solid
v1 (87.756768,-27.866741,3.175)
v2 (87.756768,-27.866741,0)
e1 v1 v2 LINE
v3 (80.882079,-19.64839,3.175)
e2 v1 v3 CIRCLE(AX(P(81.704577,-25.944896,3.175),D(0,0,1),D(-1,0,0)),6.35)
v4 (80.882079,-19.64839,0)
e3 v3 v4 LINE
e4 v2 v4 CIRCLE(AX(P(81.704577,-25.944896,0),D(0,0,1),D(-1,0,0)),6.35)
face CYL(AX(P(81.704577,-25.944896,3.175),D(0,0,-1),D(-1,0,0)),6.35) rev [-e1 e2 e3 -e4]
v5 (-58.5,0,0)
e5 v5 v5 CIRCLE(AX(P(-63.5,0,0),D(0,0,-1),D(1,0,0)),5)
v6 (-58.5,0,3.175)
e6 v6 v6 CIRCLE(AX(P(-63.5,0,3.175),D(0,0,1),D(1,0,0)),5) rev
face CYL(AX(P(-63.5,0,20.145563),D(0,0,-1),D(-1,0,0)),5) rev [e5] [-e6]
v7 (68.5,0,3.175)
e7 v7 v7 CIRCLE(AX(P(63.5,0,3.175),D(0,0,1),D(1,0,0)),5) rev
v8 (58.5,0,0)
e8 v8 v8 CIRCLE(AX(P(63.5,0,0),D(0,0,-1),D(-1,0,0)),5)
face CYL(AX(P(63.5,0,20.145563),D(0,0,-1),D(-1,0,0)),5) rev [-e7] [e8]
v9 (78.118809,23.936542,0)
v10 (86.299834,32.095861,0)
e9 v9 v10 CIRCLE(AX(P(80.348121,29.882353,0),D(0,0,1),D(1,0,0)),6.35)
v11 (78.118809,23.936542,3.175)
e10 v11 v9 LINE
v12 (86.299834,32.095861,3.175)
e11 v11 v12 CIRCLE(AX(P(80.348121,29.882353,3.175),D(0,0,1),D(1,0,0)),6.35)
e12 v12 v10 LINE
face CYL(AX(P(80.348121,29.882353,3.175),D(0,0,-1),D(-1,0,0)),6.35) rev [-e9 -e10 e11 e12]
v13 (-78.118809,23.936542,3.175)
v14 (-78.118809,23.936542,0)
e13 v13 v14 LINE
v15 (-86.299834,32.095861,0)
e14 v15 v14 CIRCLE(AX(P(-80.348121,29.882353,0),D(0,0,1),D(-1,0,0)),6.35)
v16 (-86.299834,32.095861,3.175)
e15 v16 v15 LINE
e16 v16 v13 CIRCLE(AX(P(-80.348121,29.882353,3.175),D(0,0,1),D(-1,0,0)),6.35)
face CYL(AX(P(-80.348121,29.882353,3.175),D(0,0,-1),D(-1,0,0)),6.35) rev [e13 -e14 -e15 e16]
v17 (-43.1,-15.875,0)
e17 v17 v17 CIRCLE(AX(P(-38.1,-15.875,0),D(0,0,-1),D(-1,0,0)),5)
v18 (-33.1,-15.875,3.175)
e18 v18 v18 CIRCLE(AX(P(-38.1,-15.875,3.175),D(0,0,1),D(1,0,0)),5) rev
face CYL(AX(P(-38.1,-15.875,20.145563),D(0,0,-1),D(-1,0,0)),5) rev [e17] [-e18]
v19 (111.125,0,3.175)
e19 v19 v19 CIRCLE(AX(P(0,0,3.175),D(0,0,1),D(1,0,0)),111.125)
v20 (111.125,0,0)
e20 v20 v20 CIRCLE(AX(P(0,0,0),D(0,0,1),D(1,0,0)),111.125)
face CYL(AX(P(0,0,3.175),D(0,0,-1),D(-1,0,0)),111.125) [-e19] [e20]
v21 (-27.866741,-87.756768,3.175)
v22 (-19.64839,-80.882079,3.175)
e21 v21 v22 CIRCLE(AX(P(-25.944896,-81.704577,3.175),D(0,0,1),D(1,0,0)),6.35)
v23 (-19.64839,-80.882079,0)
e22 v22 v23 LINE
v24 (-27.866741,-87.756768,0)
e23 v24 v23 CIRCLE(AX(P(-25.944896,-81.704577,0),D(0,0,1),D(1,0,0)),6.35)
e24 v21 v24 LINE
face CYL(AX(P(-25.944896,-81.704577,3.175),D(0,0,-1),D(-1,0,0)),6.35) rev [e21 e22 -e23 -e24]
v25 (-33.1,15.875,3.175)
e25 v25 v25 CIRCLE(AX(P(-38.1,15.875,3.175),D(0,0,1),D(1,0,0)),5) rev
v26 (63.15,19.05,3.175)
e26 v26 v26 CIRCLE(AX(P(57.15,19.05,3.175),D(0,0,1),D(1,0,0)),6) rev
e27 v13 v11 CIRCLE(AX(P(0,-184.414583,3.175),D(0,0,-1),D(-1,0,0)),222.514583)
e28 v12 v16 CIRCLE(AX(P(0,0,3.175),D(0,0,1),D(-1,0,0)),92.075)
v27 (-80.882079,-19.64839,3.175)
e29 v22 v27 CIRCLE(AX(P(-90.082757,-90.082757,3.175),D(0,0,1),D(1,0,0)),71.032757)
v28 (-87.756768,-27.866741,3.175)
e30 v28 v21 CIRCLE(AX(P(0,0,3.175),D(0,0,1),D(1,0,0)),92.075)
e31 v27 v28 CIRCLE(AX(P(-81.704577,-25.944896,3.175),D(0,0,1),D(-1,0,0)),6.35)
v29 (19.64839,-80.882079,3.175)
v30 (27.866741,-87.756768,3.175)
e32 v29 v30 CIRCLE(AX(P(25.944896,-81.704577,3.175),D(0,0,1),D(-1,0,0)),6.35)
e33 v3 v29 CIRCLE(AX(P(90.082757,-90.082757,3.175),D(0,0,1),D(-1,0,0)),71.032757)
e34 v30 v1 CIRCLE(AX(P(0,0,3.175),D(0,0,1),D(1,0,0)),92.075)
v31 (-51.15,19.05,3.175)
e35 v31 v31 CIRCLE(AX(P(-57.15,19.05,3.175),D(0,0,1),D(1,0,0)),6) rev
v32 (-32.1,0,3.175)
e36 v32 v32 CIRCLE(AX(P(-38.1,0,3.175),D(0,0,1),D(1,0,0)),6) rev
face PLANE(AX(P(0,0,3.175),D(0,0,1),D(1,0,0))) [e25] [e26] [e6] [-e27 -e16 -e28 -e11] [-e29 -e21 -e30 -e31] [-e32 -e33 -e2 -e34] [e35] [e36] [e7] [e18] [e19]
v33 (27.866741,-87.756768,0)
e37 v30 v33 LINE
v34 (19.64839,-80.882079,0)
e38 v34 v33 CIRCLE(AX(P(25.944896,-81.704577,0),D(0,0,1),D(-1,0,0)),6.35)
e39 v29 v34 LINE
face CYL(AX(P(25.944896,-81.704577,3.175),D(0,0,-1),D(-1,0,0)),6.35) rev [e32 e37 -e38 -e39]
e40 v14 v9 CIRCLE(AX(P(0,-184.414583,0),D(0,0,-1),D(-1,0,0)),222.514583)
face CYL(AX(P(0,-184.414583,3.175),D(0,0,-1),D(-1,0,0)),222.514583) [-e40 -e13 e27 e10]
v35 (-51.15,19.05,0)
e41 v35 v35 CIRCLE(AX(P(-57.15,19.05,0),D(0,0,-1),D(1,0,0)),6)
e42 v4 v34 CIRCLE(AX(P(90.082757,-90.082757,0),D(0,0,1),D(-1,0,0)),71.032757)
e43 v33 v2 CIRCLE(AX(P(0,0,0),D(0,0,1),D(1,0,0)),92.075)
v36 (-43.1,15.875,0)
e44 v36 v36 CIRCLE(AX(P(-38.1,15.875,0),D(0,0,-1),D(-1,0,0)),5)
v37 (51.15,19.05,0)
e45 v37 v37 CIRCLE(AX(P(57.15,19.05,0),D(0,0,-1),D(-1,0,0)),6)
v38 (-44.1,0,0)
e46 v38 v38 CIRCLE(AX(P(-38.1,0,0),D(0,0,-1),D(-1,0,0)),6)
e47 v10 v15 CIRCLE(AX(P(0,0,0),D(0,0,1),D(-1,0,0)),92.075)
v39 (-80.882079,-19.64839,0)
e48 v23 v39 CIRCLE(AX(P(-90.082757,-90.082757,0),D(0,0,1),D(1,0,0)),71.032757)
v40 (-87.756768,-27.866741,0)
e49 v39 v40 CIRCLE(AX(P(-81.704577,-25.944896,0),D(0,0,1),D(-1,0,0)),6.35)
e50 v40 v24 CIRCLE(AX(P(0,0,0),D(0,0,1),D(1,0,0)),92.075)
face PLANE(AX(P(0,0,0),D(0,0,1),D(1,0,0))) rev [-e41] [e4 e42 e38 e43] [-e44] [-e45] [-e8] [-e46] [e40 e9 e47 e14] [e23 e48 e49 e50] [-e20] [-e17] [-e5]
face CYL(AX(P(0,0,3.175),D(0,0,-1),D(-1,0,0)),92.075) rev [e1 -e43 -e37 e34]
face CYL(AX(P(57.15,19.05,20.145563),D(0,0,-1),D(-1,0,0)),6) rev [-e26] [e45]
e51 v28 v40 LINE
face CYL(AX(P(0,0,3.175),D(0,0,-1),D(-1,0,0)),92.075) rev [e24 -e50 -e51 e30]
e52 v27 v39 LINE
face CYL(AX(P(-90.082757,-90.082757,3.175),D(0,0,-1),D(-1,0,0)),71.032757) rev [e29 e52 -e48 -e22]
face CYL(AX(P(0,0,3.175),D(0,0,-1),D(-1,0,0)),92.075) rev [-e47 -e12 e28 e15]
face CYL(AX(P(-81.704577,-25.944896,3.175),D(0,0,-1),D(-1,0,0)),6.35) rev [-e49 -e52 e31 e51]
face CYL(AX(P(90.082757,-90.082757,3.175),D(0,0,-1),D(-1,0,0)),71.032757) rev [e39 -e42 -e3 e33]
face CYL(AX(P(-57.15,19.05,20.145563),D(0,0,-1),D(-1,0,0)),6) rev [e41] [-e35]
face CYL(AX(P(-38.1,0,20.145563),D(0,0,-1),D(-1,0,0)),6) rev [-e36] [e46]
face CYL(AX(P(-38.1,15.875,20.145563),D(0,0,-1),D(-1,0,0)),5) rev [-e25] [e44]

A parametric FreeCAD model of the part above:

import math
import FreeCAD as App
import Part
import Sketcher
Q = App.Units.Quantity

doc = App.newDocument("Part")
params = doc.addObject("Spreadsheet::Sheet", "Params")
for row, (alias, value) in enumerate([
    ("sketch1_diameter", "8.75 in"),
    ("sketch1_radius", "0.25 in"),
    ("sketch1_radius2", "3.625 in"),
    ("pad1_length", "0.125 in"),
    ("pocket1_length", "0.125 in"),
], start=1):
    params.set(f"A{row}", alias)
    params.set(f"B{row}", "=" + value)
    params.setAlias(f"B{row}", alias)

body = doc.addObject("PartDesign::Body", "Body")

sketch1 = body.newObject("Sketcher::SketchObject", "Sketch")
sketch1.AttachmentSupport = (doc.getObject("XY_Plane"), [""])
sketch1.MapMode = "FlatFace"
sketch1.addGeometry([
    Part.Circle(App.Vector(0, 0, 0), App.Vector(0, 0, 1), 111.125),
    Part.ArcOfCircle(Part.Circle(App.Vector(-90.082757, -90.082757, 0), App.Vector(0, 0, 1), 71.032757), math.radians(7.442275), math.radians(82.557725)),
    Part.ArcOfCircle(Part.Circle(App.Vector(-25.944896, -81.704577, 0), App.Vector(0, 0, 1), 6.35), math.radians(-107.616996), math.radians(7.442275)),
    Part.ArcOfCircle(Part.Circle(App.Vector(0, 0, 0), App.Vector(0, 0, 1), 92.075), math.radians(-162.383004), math.radians(-107.616996)),
    Part.ArcOfCircle(Part.Circle(App.Vector(-81.704577, -25.944896, 0), App.Vector(0, 0, 1), 6.35), math.radians(82.557725), math.radians(197.616996)),
    Part.ArcOfCircle(Part.Circle(App.Vector(25.944896, -81.704577, 0), App.Vector(0, 0, 1), 6.35), math.radians(172.557725), math.radians(287.616996)),
    Part.ArcOfCircle(Part.Circle(App.Vector(90.082757, -90.082757, 0), App.Vector(0, 0, 1), 71.032757), math.radians(97.442275), math.radians(172.557725)),
    Part.ArcOfCircle(Part.Circle(App.Vector(81.704577, -25.944896, 0), App.Vector(0, 0, 1), 6.35), math.radians(-17.616996), math.radians(97.442275)),
    Part.ArcOfCircle(Part.Circle(App.Vector(0, 0, 0), App.Vector(0, 0, 1), 92.075), math.radians(-72.383004), math.radians(-17.616996)),
    Part.ArcOfCircle(Part.Circle(App.Vector(0, -184.414583, 0), App.Vector(0, 0, 1), 222.514583), math.radians(69.447056), math.radians(110.552944)),
    Part.ArcOfCircle(Part.Circle(App.Vector(-80.348121, 29.882353, 0), App.Vector(0, 0, 1), 6.35), math.radians(159.599277), math.radians(290.552944)),
    Part.ArcOfCircle(Part.Circle(App.Vector(0, 0, 0), App.Vector(0, 0, 1), 92.075), math.radians(20.400723), math.radians(159.599277)),
    Part.ArcOfCircle(Part.Circle(App.Vector(80.348121, 29.882353, 0), App.Vector(0, 0, 1), 6.35), math.radians(-110.552944), math.radians(20.400723)),
], False)
sketch1.addConstraint([
    Sketcher.Constraint("Tangent", 1, 1, 2, 2),
    Sketcher.Constraint("Tangent", 2, 1, 3, 2),
    Sketcher.Constraint("Tangent", 3, 1, 4, 2),
    Sketcher.Constraint("Tangent", 4, 1, 1, 2),
    Sketcher.Constraint("Tangent", 5, 1, 6, 2),
    Sketcher.Constraint("Tangent", 6, 1, 7, 2),
    Sketcher.Constraint("Tangent", 7, 1, 8, 2),
    Sketcher.Constraint("Tangent", 8, 1, 5, 2),
    Sketcher.Constraint("Tangent", 9, 2, 10, 2),
    Sketcher.Constraint("Tangent", 10, 1, 11, 2),
    Sketcher.Constraint("Tangent", 11, 1, 12, 2),
    Sketcher.Constraint("Tangent", 12, 1, 9, 1),
    Sketcher.Constraint("Coincident", 0, 3, -1, 1),
    Sketcher.Constraint("Coincident", 3, 3, -1, 1),
    Sketcher.Constraint("Coincident", 8, 3, -1, 1),
    Sketcher.Constraint("Coincident", 11, 3, -1, 1),
    Sketcher.Constraint("Equal", 2, 4),
    Sketcher.Constraint("Equal", 4, 5),
    Sketcher.Constraint("Equal", 1, 6),
    Sketcher.Constraint("Equal", 5, 7),
    Sketcher.Constraint("Equal", 3, 8),
    Sketcher.Constraint("Equal", 7, 10),
    Sketcher.Constraint("Equal", 8, 11),
    Sketcher.Constraint("Equal", 10, 12),
    Sketcher.Constraint("Symmetric", 1, 3, 6, 3, -2),
    Sketcher.Constraint("PointOnObject", 9, 3, -2),
    Sketcher.Constraint("Diameter", 0, Q("8.75 in")),
    Sketcher.Constraint("Radius", 2, Q("0.25 in")),
    Sketcher.Constraint("Radius", 3, Q("3.625 in")),
    Sketcher.Constraint("Radius", 1, 71.032757),
    Sketcher.Constraint("Radius", 9, 222.514583),
    Sketcher.Constraint("DistanceX", 4, 3, 2, 1, Q("2.1195999 in")),
    Sketcher.Constraint("DistanceY", 2, 3, 3, 1, Q("2.1195999 in")),
    Sketcher.Constraint("DistanceY", 3, 1, 10, 1, 59.962601),
])
sketch1.setExpression("Constraints[26]", "Params.sketch1_diameter")
sketch1.setExpression("Constraints[27]", "Params.sketch1_radius")
sketch1.setExpression("Constraints[28]", "Params.sketch1_radius2")
pad1 = body.newObject("PartDesign::Pad", "Pad")
pad1.Profile = sketch1
pad1.setExpression("Length", "Params.pad1_length")

sketch2 = body.newObject("Sketcher::SketchObject", "Sketch001")
sketch2.AttachmentSupport = (doc.getObject("XY_Plane"), [""])
sketch2.MapMode = "FlatFace"
sketch2.addGeometry([
    Part.Circle(App.Vector(57.15, 19.05, 0), App.Vector(0, 0, 1), 6),
    Part.Circle(App.Vector(63.5, 0, 0), App.Vector(0, 0, 1), 5),
    Part.Circle(App.Vector(-57.15, 19.05, 0), App.Vector(0, 0, 1), 6),
    Part.Circle(App.Vector(-63.5, 0, 0), App.Vector(0, 0, 1), 5),
    Part.Circle(App.Vector(-38.1, 0, 0), App.Vector(0, 0, 1), 6),
    Part.Circle(App.Vector(-38.1, 15.875, 0), App.Vector(0, 0, 1), 5),
    Part.Circle(App.Vector(-38.1, -15.875, 0), App.Vector(0, 0, 1), 5),
], False)
sketch2.addConstraint([
    Sketcher.Constraint("Equal", 0, 2),
    Sketcher.Constraint("Equal", 1, 3),
    Sketcher.Constraint("Equal", 2, 4),
    Sketcher.Constraint("Equal", 3, 5),
    Sketcher.Constraint("Equal", 5, 6),
    Sketcher.Constraint("Symmetric", 1, 3, 3, 3, -1, 1),
    Sketcher.Constraint("Symmetric", 0, 3, 2, 3, -2),
    Sketcher.Constraint("Symmetric", 5, 3, 6, 3, -1),
    Sketcher.Constraint("PointOnObject", 1, 3, -1),
    Sketcher.Constraint("PointOnObject", 4, 3, -1),
    Sketcher.Constraint("Vertical", 4, 3, 5, 3),
    Sketcher.Constraint("DistanceX", 3, 3, 1, 3, Q("5 in")),
    Sketcher.Constraint("DistanceX", 3, 3, 4, 3, Q("1 in")),
    Sketcher.Constraint("DistanceX", 2, 3, 0, 3, Q("4.5 in")),
    Sketcher.Constraint("Diameter", 0, 12.0),
    Sketcher.Constraint("Diameter", 1, 10.0),
    Sketcher.Constraint("DistanceY", -1, 1, 0, 3, Q("0.75 in")),
    Sketcher.Constraint("DistanceY", 6, 3, 5, 3, Q("1.25 in")),
])
pocket1 = body.newObject("PartDesign::Pocket", "Pocket")
pocket1.Profile = sketch2
pocket1.setExpression("Length", "Params.pocket1_length")
pocket1.Reversed = True

doc.recompute()
